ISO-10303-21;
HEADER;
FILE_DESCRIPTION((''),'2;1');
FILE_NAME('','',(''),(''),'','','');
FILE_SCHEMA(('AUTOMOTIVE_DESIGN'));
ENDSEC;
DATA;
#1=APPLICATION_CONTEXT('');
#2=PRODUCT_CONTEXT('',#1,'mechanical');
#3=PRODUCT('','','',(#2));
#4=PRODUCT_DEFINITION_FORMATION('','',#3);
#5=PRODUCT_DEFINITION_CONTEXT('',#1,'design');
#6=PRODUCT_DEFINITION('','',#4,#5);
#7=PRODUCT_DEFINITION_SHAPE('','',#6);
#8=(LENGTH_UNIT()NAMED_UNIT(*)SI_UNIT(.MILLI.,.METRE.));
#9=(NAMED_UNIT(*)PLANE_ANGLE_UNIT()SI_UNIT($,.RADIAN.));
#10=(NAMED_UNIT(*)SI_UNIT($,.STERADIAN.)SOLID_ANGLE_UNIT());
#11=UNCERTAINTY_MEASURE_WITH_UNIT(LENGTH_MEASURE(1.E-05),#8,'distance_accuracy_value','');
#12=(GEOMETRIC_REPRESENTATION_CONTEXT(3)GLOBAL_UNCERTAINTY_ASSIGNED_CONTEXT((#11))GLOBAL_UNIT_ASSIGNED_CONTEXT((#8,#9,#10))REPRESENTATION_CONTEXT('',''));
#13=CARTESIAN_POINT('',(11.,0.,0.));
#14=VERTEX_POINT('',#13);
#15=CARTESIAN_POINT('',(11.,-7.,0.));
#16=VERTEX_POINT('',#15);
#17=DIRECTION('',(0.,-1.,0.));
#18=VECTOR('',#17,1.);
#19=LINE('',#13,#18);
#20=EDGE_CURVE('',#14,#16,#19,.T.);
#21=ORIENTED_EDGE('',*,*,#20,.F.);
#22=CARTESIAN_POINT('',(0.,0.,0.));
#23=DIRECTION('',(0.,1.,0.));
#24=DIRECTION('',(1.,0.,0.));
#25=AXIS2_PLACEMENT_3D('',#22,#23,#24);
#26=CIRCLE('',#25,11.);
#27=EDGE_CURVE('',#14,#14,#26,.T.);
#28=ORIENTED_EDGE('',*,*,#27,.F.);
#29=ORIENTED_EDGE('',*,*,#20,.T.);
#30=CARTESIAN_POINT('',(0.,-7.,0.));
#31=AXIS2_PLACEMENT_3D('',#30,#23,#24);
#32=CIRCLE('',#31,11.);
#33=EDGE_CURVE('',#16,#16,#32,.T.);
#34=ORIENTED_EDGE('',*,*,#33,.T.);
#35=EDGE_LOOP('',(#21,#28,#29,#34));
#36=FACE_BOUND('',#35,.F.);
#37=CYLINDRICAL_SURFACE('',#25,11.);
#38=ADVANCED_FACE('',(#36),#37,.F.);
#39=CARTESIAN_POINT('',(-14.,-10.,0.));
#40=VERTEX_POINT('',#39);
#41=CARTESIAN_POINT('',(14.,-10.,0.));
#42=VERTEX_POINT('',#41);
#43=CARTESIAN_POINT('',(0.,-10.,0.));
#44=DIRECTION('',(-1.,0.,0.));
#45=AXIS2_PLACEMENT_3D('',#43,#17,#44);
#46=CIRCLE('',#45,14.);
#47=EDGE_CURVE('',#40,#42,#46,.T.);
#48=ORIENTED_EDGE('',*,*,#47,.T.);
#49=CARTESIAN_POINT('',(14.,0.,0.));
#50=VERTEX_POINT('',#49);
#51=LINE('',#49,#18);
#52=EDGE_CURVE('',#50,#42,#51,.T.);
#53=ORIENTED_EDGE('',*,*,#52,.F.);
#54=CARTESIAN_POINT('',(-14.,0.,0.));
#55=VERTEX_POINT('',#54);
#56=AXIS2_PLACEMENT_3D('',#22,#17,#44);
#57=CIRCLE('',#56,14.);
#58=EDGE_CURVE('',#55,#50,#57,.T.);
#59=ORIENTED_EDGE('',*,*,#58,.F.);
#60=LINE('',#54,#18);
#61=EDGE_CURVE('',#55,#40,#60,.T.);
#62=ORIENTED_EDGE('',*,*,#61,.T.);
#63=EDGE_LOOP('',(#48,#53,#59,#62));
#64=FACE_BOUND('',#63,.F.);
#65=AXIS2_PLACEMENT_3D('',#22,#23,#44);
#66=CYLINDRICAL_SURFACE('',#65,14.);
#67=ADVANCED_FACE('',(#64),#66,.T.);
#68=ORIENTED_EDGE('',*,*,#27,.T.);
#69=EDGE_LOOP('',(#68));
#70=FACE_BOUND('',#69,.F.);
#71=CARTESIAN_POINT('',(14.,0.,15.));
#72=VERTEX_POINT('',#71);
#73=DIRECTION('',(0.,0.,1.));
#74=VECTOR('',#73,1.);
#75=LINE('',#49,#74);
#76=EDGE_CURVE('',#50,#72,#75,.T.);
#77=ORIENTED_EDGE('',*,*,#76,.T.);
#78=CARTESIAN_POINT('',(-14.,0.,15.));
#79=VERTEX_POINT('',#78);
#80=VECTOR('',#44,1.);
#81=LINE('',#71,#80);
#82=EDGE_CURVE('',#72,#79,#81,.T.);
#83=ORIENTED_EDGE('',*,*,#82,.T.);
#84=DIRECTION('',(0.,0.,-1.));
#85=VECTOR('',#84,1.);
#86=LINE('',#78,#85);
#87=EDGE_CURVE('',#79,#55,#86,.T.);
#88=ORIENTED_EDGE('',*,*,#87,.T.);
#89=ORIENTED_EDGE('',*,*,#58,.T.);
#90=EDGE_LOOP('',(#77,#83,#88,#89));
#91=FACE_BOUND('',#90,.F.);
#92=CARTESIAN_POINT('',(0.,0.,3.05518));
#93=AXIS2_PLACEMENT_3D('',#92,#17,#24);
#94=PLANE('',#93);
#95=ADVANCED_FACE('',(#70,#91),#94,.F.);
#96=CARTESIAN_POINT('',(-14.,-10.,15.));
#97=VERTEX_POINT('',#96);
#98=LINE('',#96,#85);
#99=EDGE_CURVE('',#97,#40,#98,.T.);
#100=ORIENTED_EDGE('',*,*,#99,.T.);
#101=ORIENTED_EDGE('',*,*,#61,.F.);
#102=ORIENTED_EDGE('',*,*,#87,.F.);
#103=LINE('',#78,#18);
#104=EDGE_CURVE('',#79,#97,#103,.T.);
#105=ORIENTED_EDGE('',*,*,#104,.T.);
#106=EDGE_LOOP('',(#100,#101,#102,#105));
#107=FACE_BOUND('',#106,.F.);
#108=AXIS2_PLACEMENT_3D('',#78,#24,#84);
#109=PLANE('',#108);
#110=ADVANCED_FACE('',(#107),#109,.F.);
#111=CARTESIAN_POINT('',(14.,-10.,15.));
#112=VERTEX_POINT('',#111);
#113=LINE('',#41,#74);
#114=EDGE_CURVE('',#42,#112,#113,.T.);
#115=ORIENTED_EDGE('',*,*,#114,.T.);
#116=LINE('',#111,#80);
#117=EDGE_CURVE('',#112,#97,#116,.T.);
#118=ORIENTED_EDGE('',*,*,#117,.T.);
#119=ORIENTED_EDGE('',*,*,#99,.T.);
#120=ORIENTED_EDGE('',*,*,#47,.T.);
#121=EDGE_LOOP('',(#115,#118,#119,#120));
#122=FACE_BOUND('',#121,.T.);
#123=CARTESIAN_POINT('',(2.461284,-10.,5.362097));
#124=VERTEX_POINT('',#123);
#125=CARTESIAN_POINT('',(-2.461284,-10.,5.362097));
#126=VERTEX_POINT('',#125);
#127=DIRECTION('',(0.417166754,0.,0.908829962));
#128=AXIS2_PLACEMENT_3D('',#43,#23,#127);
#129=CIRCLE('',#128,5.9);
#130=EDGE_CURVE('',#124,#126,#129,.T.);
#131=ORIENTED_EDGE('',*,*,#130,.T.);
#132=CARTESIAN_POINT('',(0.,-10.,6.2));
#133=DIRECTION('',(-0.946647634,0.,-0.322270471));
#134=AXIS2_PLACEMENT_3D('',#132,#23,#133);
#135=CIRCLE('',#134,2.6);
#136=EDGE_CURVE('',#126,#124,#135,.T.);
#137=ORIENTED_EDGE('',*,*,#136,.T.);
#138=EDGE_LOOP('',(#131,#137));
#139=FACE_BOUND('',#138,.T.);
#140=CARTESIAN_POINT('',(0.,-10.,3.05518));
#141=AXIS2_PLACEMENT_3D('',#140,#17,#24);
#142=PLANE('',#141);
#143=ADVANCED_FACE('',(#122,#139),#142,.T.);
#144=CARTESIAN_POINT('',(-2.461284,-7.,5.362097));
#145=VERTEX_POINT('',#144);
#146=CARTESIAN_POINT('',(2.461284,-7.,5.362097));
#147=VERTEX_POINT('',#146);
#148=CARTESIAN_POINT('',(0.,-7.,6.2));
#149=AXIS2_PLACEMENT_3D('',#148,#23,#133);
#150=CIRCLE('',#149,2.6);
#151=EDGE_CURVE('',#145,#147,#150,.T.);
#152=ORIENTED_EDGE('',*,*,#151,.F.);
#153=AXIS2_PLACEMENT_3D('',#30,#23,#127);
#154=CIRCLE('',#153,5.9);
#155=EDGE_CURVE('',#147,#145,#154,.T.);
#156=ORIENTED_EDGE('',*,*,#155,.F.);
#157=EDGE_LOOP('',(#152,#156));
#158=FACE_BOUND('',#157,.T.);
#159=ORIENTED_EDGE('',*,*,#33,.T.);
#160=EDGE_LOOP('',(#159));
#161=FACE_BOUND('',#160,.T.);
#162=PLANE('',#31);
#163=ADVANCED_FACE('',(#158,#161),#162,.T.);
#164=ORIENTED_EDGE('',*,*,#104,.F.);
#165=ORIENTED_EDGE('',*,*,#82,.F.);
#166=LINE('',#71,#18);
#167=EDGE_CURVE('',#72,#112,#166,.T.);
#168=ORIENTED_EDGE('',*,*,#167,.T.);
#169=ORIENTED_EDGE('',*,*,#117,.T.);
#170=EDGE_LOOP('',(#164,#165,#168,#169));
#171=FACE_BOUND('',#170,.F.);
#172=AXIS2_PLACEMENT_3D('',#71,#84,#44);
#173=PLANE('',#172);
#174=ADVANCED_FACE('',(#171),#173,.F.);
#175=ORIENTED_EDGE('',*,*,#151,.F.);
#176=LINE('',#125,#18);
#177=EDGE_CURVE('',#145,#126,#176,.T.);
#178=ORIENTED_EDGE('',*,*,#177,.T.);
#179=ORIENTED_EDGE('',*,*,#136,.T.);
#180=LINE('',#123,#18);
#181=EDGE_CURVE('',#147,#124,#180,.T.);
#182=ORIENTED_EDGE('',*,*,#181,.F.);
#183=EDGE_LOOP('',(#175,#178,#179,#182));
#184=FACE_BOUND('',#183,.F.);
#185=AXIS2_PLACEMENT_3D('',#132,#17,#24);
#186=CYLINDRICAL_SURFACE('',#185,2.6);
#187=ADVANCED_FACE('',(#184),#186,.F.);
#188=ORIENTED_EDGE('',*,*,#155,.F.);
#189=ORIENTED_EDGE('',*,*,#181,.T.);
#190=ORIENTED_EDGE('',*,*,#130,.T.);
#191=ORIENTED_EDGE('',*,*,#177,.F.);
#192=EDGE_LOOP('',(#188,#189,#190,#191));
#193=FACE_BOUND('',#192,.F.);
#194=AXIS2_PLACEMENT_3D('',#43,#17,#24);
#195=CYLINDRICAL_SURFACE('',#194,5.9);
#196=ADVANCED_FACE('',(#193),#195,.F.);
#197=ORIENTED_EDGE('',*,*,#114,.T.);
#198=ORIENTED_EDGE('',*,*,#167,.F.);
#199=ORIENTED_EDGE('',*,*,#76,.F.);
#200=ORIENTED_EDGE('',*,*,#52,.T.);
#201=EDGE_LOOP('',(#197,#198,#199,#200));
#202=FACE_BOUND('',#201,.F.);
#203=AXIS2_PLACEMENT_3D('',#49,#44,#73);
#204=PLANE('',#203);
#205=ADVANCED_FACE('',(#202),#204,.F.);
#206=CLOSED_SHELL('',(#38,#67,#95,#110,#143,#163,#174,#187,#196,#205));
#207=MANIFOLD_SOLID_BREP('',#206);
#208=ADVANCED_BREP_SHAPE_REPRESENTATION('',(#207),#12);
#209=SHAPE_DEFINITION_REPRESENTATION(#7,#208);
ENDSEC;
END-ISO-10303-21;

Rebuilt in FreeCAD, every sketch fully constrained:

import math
import FreeCAD as App
import Part
import Sketcher
from FreeCAD import Vector
Q = App.Units.Quantity

doc = App.newDocument("Part")
body = doc.addObject("PartDesign::Body", "Body")

sketch1 = doc.addObject("Sketcher::SketchObject", "Sketch")
body.addObject(sketch1)
sketch1.AttachmentSupport = (doc.XZ_Plane, [""])
sketch1.MapMode = "FlatFace"
sketch1.addGeometry([
    Part.LineSegment(Vector(-14, 15, 0), Vector(-14, 0, 0)),
    Part.ArcOfCircle(Part.Circle(Vector(0, 0, 0), Vector(0, 0, 1), 14), math.radians(180), math.radians(360)),
    Part.LineSegment(Vector(14, 0, 0), Vector(14, 15, 0)),
    Part.LineSegment(Vector(14, 15, 0), Vector(-14, 15, 0)),
], False)
sketch1.addConstraint([
    Sketcher.Constraint("Tangent", 0, 2, 1, 1),
    Sketcher.Constraint("Tangent", 1, 2, 2, 1),
    Sketcher.Constraint("Coincident", 2, 2, 3, 1),
    Sketcher.Constraint("Coincident", 3, 2, 0, 1),
    Sketcher.Constraint("Vertical", 0),
    Sketcher.Constraint("Vertical", 2),
    Sketcher.Constraint("Horizontal", 3),
    Sketcher.Constraint("Coincident", 1, 3, -1, 1),
    Sketcher.Constraint("Radius", 1, Q("14 mm")),
    Sketcher.Constraint("DistanceY", 0, 2, 0, 1, Q("15 mm")),
])
pad1 = doc.addObject("PartDesign::Pad", "Pad")
body.addObject(pad1)
pad1.Profile = sketch1
pad1.Length = 10

sketch2 = doc.addObject("Sketcher::SketchObject", "Sketch001")
body.addObject(sketch2)
sketch2.AttachmentSupport = (doc.XZ_Plane, [""])
sketch2.MapMode = "FlatFace"
sketch2.addGeometry(Part.Circle(Vector(0, 0, 0), Vector(0, 0, 1), 11), False)
sketch2.addConstraint([
    Sketcher.Constraint("Coincident", 0, 3, -1, 1),
    Sketcher.Constraint("Diameter", 0, Q("22 mm")),
])
pocket1 = doc.addObject("PartDesign::Pocket", "Pocket")
body.addObject(pocket1)
pocket1.Profile = sketch2
pocket1.Length = 7
pocket1.Reversed = True

sketch3 = doc.addObject("Sketcher::SketchObject", "Sketch002")
body.addObject(sketch3)
sketch3.AttachmentSupport = (doc.XZ_Plane, [""])
sketch3.MapMode = "FlatFace"
sketch3.AttachmentOffset = App.Placement(Vector(0, 0, 10), App.Rotation())
sketch3.addGeometry(Part.Circle(Vector(0, 0, 0), Vector(0, 0, 1), 6), False)
sketch3.addConstraint([
    Sketcher.Constraint("Coincident", 0, 3, -1, 1),
    Sketcher.Constraint("Diameter", 0, Q("11.8 mm")),
])
pocket2 = doc.addObject("PartDesign::Pocket", "Pocket001")
body.addObject(pocket2)
pocket2.Profile = sketch3
pocket2.Length = 5

sketch4 = doc.addObject("Sketcher::SketchObject", "Sketch003")
body.addObject(sketch4)
sketch4.AttachmentSupport = (doc.XZ_Plane, [""])
sketch4.MapMode = "FlatFace"
sketch4.AttachmentOffset = App.Placement(Vector(0, 0, 10), App.Rotation())
sketch4.addGeometry(Part.Circle(Vector(0, 6.2, 0), Vector(0, 0, 1), 2.6), False)
sketch4.addConstraint([
    Sketcher.Constraint("PointOnObject", 0, 3, -2),
    Sketcher.Constraint("Diameter", 0, Q("5.2 mm")),
    Sketcher.Constraint("DistanceY", -1, 1, 0, 3, Q("6.2 mm")),
])
pocket3 = doc.addObject("PartDesign::Pocket", "Pocket002")
body.addObject(pocket3)
pocket3.Profile = sketch4
pocket3.Length = 5

doc.recompute()
